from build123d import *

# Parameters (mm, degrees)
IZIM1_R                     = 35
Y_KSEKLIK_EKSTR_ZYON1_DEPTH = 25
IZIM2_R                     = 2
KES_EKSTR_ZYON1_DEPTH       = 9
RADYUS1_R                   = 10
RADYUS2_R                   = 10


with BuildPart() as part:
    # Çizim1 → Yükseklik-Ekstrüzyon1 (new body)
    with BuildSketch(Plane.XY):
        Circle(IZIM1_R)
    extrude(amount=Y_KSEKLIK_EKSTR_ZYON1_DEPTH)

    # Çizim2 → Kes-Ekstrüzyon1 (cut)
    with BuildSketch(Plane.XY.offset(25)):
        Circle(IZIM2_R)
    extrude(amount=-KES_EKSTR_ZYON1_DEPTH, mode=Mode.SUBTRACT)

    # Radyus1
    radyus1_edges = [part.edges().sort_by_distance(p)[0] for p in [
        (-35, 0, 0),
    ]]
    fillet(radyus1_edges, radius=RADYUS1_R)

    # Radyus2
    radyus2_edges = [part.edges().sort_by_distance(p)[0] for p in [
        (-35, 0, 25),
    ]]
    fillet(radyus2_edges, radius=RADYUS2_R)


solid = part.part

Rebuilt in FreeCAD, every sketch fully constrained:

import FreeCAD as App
import Part
import Sketcher

V = App.Vector


def edges_at(feature, points):
    """Names of the edges that pass closest to the given points."""
    edges = feature.Shape.Edges
    near = lambda p: min(range(len(edges)), key=lambda i: edges[i].distToShape(Part.Vertex(*p))[0])
    return sorted({f"Edge{near(p) + 1}" for p in points})

doc = App.newDocument("Part")
body = doc.addObject("PartDesign::Body", "Body")

sketch1 = body.newObject("Sketcher::SketchObject", "Sketch")
sketch1.AttachmentSupport = (doc.getObject("XY_Plane"), [""])
sketch1.MapMode = "FlatFace"
sketch1.addGeometry(Part.Circle(V(0, 0, 0), V(0, 0, 1), 35), False)
sketch1.addConstraint(Sketcher.Constraint("Coincident", 0, 3, -1, 1))
sketch1.addConstraint(Sketcher.Constraint("Diameter", 0, 70.0))
pad1 = body.newObject("PartDesign::Pad", "Pad")
pad1.Profile = sketch1
pad1.Length = 25

sketch2 = body.newObject("Sketcher::SketchObject", "Sketch001")
sketch2.AttachmentSupport = (doc.getObject("XY_Plane"), [""])
sketch2.MapMode = "FlatFace"
sketch2.AttachmentOffset = App.Placement(V(0, 0, 25), App.Rotation())
sketch2.addGeometry(Part.Circle(V(0, 0, 0), V(0, 0, 1), 2), False)
sketch2.addConstraint(Sketcher.Constraint("Coincident", 0, 3, -1, 1))
sketch2.addConstraint(Sketcher.Constraint("Diameter", 0, 4.0))
pocket1 = body.newObject("PartDesign::Pocket", "Pocket")
pocket1.Profile = sketch2
pocket1.Length = 9
doc.recompute()

fillet = body.newObject("PartDesign::Fillet", "Fillet")
fillet.Base = (pocket1, edges_at(pocket1, [(-35, 0, 0)]))
fillet.Radius = 10
doc.recompute()

fillet2 = body.newObject("PartDesign::Fillet", "Fillet001")
fillet2.Base = (fillet, edges_at(fillet, [(-35, 0, 25)]))
fillet2.Radius = 10

doc.recompute()
